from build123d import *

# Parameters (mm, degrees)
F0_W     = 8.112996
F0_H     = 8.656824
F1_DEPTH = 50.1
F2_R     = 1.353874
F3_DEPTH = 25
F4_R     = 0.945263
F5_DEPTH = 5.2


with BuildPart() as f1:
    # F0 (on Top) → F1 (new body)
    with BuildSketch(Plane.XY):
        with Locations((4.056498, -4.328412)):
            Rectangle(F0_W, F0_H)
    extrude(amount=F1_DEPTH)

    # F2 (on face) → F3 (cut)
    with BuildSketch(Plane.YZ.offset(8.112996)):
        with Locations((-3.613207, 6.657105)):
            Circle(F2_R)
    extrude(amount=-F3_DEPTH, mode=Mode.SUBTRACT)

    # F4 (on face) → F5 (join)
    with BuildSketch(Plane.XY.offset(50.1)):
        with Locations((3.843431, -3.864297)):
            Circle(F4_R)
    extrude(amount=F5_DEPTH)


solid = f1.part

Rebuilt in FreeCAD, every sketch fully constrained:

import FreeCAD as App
import Part
import Sketcher
from FreeCAD import Vector

doc = App.newDocument("Part")
body = doc.addObject("PartDesign::Body", "Body")

# Sketch on XY plane
sketch1 = body.newObject("Sketcher::SketchObject", "Sketch")
sketch1.AttachmentSupport = (doc.getObject("XY_Plane"), [""])
sketch1.MapMode = "FlatFace"
sketch1.addGeometry([
    Part.LineSegment(Vector(0, 0, 0), Vector(0, -9, 0)),
    Part.LineSegment(Vector(0, -9, 0), Vector(8, -9, 0)),
    Part.LineSegment(Vector(8, -9, 0), Vector(8, 0, 0)),
    Part.LineSegment(Vector(8, 0, 0), Vector(0, 0, 0)),
], False)
sketch1.addConstraint([
    Sketcher.Constraint("Coincident", 0, 2, 1, 1),
    Sketcher.Constraint("Coincident", 1, 2, 2, 1),
    Sketcher.Constraint("Coincident", 2, 2, 3, 1),
    Sketcher.Constraint("Coincident", 3, 2, 0, 1),
    Sketcher.Constraint("Vertical", 0),
    Sketcher.Constraint("Horizontal", 1),
    Sketcher.Constraint("Vertical", 2),
    Sketcher.Constraint("Horizontal", 3),
    Sketcher.Constraint("Coincident", 3, 2, -1, 1),
    Sketcher.Constraint("DistanceX", 1, 1, 1, 2, 8.112996),
    Sketcher.Constraint("DistanceY", 0, 2, 0, 1, 8.656824),
])
pad1 = body.newObject("PartDesign::Pad", "Pad")
pad1.Profile = sketch1
pad1.Length = 50.1

# Sketch on YZ plane
sketch2 = body.newObject("Sketcher::SketchObject", "Sketch001")
sketch2.AttachmentSupport = (doc.getObject("YZ_Plane"), [""])
sketch2.MapMode = "FlatFace"
sketch2.AttachmentOffset = App.Placement(Vector(0, 0, 8.112996), App.Rotation())
sketch2.addGeometry(Part.Circle(Vector(-3.6, 6.7, 0), Vector(0, 0, 1), 1.4), False)
sketch2.addConstraint([
    Sketcher.Constraint("Diameter", 0, 2.707748),
    Sketcher.Constraint("DistanceX", 0, 3, -1, 1, 3.613207),
    Sketcher.Constraint("DistanceY", -1, 1, 0, 3, 6.657105),
])
pocket1 = body.newObject("PartDesign::Pocket", "Pocket")
pocket1.Profile = sketch2
pocket1.Length = 25

# Sketch on XY plane
sketch3 = body.newObject("Sketcher::SketchObject", "Sketch002")
sketch3.AttachmentSupport = (doc.getObject("XY_Plane"), [""])
sketch3.MapMode = "FlatFace"
sketch3.AttachmentOffset = App.Placement(Vector(0, 0, 50.1), App.Rotation())
sketch3.addGeometry(Part.Circle(Vector(3.8, -3.9, 0), Vector(0, 0, 1), 0.9), False)
sketch3.addConstraint([
    Sketcher.Constraint("Diameter", 0, 1.890526),
    Sketcher.Constraint("DistanceX", -1, 1, 0, 3, 3.843431),
    Sketcher.Constraint("DistanceY", 0, 3, -1, 1, 3.864297),
])
pad2 = body.newObject("PartDesign::Pad", "Pad001")
pad2.Profile = sketch3
pad2.Length = 5.2

doc.recompute()
